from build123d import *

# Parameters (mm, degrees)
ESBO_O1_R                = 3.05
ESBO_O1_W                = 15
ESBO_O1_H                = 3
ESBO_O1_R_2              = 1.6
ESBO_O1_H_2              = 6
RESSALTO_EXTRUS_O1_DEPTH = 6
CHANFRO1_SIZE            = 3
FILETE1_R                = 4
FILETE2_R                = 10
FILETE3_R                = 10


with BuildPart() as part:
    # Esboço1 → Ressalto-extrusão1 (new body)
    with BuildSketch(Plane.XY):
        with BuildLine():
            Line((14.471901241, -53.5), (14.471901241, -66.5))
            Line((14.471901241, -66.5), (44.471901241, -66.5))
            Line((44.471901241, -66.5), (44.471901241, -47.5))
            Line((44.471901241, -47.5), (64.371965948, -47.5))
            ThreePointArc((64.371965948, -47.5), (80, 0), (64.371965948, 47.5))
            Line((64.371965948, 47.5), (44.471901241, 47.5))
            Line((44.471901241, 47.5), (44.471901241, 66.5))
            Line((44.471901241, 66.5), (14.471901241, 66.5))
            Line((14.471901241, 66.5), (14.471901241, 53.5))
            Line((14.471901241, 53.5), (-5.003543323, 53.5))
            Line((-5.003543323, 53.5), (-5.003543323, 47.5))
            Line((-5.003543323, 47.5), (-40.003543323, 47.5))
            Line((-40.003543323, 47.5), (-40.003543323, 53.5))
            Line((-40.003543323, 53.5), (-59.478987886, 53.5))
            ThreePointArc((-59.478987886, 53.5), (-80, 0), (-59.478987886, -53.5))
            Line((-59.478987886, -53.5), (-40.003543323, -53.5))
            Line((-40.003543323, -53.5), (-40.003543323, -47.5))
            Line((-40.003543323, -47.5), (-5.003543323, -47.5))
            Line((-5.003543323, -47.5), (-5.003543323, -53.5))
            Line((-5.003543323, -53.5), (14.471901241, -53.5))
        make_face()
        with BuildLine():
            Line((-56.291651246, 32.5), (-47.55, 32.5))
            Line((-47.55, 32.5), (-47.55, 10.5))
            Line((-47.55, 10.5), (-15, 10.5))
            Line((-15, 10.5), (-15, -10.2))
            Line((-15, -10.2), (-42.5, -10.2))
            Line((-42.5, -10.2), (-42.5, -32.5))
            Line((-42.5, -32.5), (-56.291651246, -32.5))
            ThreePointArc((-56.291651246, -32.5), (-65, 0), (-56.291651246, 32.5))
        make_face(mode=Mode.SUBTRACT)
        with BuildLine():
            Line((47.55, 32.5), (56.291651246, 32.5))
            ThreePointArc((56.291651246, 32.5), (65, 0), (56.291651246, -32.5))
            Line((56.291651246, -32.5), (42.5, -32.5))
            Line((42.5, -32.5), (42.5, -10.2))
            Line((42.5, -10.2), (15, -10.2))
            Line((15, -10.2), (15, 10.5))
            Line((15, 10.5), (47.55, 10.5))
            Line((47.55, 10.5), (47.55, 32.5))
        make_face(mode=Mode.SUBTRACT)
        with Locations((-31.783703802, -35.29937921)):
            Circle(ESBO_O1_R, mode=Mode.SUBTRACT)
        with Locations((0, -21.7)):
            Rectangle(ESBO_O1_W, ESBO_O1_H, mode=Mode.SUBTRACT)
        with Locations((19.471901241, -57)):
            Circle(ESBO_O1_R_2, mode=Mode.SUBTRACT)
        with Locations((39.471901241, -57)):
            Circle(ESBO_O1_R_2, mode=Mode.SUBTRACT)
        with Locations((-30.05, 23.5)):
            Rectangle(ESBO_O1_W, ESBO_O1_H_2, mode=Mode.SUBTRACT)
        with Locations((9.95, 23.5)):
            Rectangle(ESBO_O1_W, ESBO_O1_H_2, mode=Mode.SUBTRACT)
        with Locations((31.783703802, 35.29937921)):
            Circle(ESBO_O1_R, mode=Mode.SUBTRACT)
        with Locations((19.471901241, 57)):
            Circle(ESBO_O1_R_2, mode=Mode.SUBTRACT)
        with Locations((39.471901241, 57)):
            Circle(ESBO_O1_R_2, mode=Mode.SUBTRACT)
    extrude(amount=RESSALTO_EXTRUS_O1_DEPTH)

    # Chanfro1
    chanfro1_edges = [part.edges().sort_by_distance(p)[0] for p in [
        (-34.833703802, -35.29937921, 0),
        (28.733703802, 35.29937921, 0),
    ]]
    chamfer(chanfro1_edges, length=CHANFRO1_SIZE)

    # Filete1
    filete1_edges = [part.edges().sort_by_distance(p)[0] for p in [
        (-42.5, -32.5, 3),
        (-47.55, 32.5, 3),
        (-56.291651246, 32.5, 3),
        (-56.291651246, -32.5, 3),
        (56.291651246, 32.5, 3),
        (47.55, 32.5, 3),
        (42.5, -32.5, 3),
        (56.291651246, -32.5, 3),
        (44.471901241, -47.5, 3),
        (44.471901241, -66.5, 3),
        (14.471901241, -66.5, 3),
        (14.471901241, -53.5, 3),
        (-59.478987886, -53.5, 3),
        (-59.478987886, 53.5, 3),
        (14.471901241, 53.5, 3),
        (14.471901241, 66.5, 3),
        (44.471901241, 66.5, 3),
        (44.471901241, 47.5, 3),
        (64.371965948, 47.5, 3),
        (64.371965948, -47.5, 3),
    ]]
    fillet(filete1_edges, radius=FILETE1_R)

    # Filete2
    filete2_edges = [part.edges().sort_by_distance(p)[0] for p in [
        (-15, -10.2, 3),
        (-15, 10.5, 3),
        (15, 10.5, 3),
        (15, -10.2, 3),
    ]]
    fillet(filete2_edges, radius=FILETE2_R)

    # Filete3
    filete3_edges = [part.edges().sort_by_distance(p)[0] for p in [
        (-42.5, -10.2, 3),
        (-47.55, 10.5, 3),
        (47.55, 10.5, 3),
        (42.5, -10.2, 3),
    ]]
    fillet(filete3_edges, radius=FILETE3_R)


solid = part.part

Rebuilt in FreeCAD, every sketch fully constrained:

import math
import FreeCAD as App
import Part
import Sketcher
Q = App.Units.Quantity


def edges_at(feature, points):
    """Names of the edges that pass closest to the given points."""
    edges = feature.Shape.Edges
    near = lambda p: min(range(len(edges)), key=lambda i: edges[i].distToShape(Part.Vertex(*p))[0])
    return sorted({f"Edge{near(p) + 1}" for p in points})

doc = App.newDocument("Part")
body = doc.addObject("PartDesign::Body", "Body")

# Sketch on XY plane
sketch1 = doc.addObject("Sketcher::SketchObject", "Sketch")
body.addObject(sketch1)
sketch1.AttachmentSupport = (doc.XY_Plane, [""])
sketch1.MapMode = "FlatFace"
sketch1.addGeometry([
    Part.LineSegment(App.Vector(14.5, -53.5, 0), App.Vector(14.5, -66.5, 0)),  # 0
    Part.LineSegment(App.Vector(14.5, -66.5, 0), App.Vector(44.5, -66.5, 0)),  # 1
    Part.LineSegment(App.Vector(44.5, -66.5, 0), App.Vector(44.5, -47.5, 0)),  # 2
    Part.LineSegment(App.Vector(44.5, -47.5, 0), App.Vector(64.4, -47.5, 0)),  # 3
    Part.ArcOfCircle(Part.Circle(App.Vector(0, 0, 0), App.Vector(0, 0, 1), 80), math.radians(-36), math.radians(36)),  # 4
    Part.LineSegment(App.Vector(64.4, 47.5, 0), App.Vector(44.5, 47.5, 0)),  # 5
    Part.LineSegment(App.Vector(44.5, 47.5, 0), App.Vector(44.5, 66.5, 0)),  # 6
    Part.LineSegment(App.Vector(44.5, 66.5, 0), App.Vector(14.5, 66.5, 0)),  # 7
    Part.LineSegment(App.Vector(14.5, 66.5, 0), App.Vector(14.5, 53.5, 0)),  # 8
    Part.LineSegment(App.Vector(14.5, 53.5, 0), App.Vector(-5, 53.5, 0)),  # 9
    Part.LineSegment(App.Vector(-5, 53.5, 0), App.Vector(-5, 47.5, 0)),  # 10
    Part.LineSegment(App.Vector(-5, 47.5, 0), App.Vector(-40, 47.5, 0)),  # 11
    Part.LineSegment(App.Vector(-40, 47.5, 0), App.Vector(-40, 53.5, 0)),  # 12
    Part.LineSegment(App.Vector(-40, 53.5, 0), App.Vector(-59.5, 53.5, 0)),  # 13
    Part.ArcOfCircle(Part.Circle(App.Vector(0, 0, 0), App.Vector(0, 0, 1), 80), math.radians(138), math.radians(222)),  # 14
    Part.LineSegment(App.Vector(-59.5, -53.5, 0), App.Vector(-40, -53.5, 0)),  # 15
    Part.LineSegment(App.Vector(-40, -53.5, 0), App.Vector(-40, -47.5, 0)),  # 16
    Part.LineSegment(App.Vector(-40, -47.5, 0), App.Vector(-5, -47.5, 0)),  # 17
    Part.LineSegment(App.Vector(-5, -47.5, 0), App.Vector(-5, -53.5, 0)),  # 18
    Part.LineSegment(App.Vector(-5, -53.5, 0), App.Vector(14.5, -53.5, 0)),  # 19
    Part.Circle(App.Vector(-31.8, -35.3, 0), App.Vector(0, 0, 1), 3),  # 20
    Part.Circle(App.Vector(19.5, -57, 0), App.Vector(0, 0, 1), 1.6),  # 21
    Part.Circle(App.Vector(39.5, -57, 0), App.Vector(0, 0, 1), 1.6),  # 22
    Part.LineSegment(App.Vector(7.5, -23.2, 0), App.Vector(-7.5, -23.2, 0)),  # 23
    Part.LineSegment(App.Vector(-7.5, -23.2, 0), App.Vector(-7.5, -20.2, 0)),  # 24
    Part.LineSegment(App.Vector(-7.5, -20.2, 0), App.Vector(7.5, -20.2, 0)),  # 25
    Part.LineSegment(App.Vector(7.5, -20.2, 0), App.Vector(7.5, -23.2, 0)),  # 26
    Part.LineSegment(App.Vector(47.5, 10.5, 0), App.Vector(47.5, 32.5, 0)),  # 27
    Part.LineSegment(App.Vector(47.5, 32.5, 0), App.Vector(56.3, 32.5, 0)),  # 28
    Part.ArcOfCircle(Part.Circle(App.Vector(0, 0, 0), App.Vector(0, 0, 1), 65), math.radians(-30), math.radians(30)),  # 29
    Part.LineSegment(App.Vector(56.3, -32.5, 0), App.Vector(42.5, -32.5, 0)),  # 30
    Part.LineSegment(App.Vector(42.5, -32.5, 0), App.Vector(42.5, -10.2, 0)),  # 31
    Part.LineSegment(App.Vector(42.5, -10.2, 0), App.Vector(15, -10.2, 0)),  # 32
    Part.LineSegment(App.Vector(15, -10.2, 0), App.Vector(15, 10.5, 0)),  # 33
    Part.LineSegment(App.Vector(15, 10.5, 0), App.Vector(47.5, 10.5, 0)),  # 34
    Part.ArcOfCircle(Part.Circle(App.Vector(0, 0, 0), App.Vector(0, 0, 1), 65), math.radians(150), math.radians(210)),  # 35
    Part.LineSegment(App.Vector(-56.3, 32.5, 0), App.Vector(-47.5, 32.5, 0)),  # 36
    Part.LineSegment(App.Vector(-47.5, 32.5, 0), App.Vector(-47.5, 10.5, 0)),  # 37
    Part.LineSegment(App.Vector(-47.5, 10.5, 0), App.Vector(-15, 10.5, 0)),  # 38
    Part.LineSegment(App.Vector(-15, 10.5, 0), App.Vector(-15, -10.2, 0)),  # 39
    Part.LineSegment(App.Vector(-15, -10.2, 0), App.Vector(-42.5, -10.2, 0)),  # 40
    Part.LineSegment(App.Vector(-42.5, -10.2, 0), App.Vector(-42.5, -32.5, 0)),  # 41
    Part.LineSegment(App.Vector(-42.5, -32.5, 0), App.Vector(-56.3, -32.5, 0)),  # 42
    Part.LineSegment(App.Vector(-22.6, 20.5, 0), App.Vector(-37.5, 20.5, 0)),  # 43
    Part.LineSegment(App.Vector(-37.5, 20.5, 0), App.Vector(-37.5, 26.5, 0)),  # 44
    Part.LineSegment(App.Vector(-37.5, 26.5, 0), App.Vector(-22.6, 26.5, 0)),  # 45
    Part.LineSegment(App.Vector(-22.6, 26.5, 0), App.Vector(-22.6, 20.5, 0)),  # 46
    Part.LineSegment(App.Vector(17.4, 20.5, 0), App.Vector(2.5, 20.5, 0)),  # 47
    Part.LineSegment(App.Vector(2.5, 20.5, 0), App.Vector(2.5, 26.5, 0)),  # 48
    Part.LineSegment(App.Vector(2.5, 26.5, 0), App.Vector(17.4, 26.5, 0)),  # 49
    Part.LineSegment(App.Vector(17.4, 26.5, 0), App.Vector(17.4, 20.5, 0)),  # 50
    Part.Circle(App.Vector(31.8, 35.3, 0), App.Vector(0, 0, 1), 3),  # 51
    Part.Circle(App.Vector(19.5, 57, 0), App.Vector(0, 0, 1), 1.6),  # 52
    Part.Circle(App.Vector(39.5, 57, 0), App.Vector(0, 0, 1), 1.6),  # 53
], False)
sketch1.addConstraint([
    Sketcher.Constraint("Coincident", 0, 2, 1, 1),
    Sketcher.Constraint("Coincident", 1, 2, 2, 1),
    Sketcher.Constraint("Coincident", 2, 2, 3, 1),
    Sketcher.Constraint("Coincident", 3, 2, 4, 1),
    Sketcher.Constraint("Coincident", 4, 2, 5, 1),
    Sketcher.Constraint("Coincident", 5, 2, 6, 1),
    Sketcher.Constraint("Coincident", 6, 2, 7, 1),
    Sketcher.Constraint("Coincident", 7, 2, 8, 1),
    Sketcher.Constraint("Coincident", 8, 2, 9, 1),
    Sketcher.Constraint("Coincident", 9, 2, 10, 1),
    Sketcher.Constraint("Coincident", 10, 2, 11, 1),
    Sketcher.Constraint("Coincident", 11, 2, 12, 1),
    Sketcher.Constraint("Coincident", 12, 2, 13, 1),
    Sketcher.Constraint("Coincident", 13, 2, 14, 1),
    Sketcher.Constraint("Coincident", 14, 2, 15, 1),
    Sketcher.Constraint("Coincident", 15, 2, 16, 1),
    Sketcher.Constraint("Coincident", 16, 2, 17, 1),
    Sketcher.Constraint("Coincident", 17, 2, 18, 1),
    Sketcher.Constraint("Coincident", 18, 2, 19, 1),
    Sketcher.Constraint("Coincident", 19, 2, 0, 1),
    Sketcher.Constraint("Coincident", 23, 2, 24, 1),
    Sketcher.Constraint("Coincident", 24, 2, 25, 1),
    Sketcher.Constraint("Coincident", 25, 2, 26, 1),
    Sketcher.Constraint("Coincident", 26, 2, 23, 1),
    Sketcher.Constraint("Coincident", 27, 2, 28, 1),
    Sketcher.Constraint("Coincident", 28, 2, 29, 2),
    Sketcher.Constraint("Coincident", 29, 1, 30, 1),
    Sketcher.Constraint("Coincident", 30, 2, 31, 1),
    Sketcher.Constraint("Coincident", 31, 2, 32, 1),
    Sketcher.Constraint("Coincident", 32, 2, 33, 1),
    Sketcher.Constraint("Coincident", 33, 2, 34, 1),
    Sketcher.Constraint("Coincident", 34, 2, 27, 1),
    Sketcher.Constraint("Coincident", 35, 1, 36, 1),
    Sketcher.Constraint("Coincident", 36, 2, 37, 1),
    Sketcher.Constraint("Coincident", 37, 2, 38, 1),
    Sketcher.Constraint("Coincident", 38, 2, 39, 1),
    Sketcher.Constraint("Coincident", 39, 2, 40, 1),
    Sketcher.Constraint("Coincident", 40, 2, 41, 1),
    Sketcher.Constraint("Coincident", 41, 2, 42, 1),
    Sketcher.Constraint("Coincident", 42, 2, 35, 2),
    Sketcher.Constraint("Coincident", 43, 2, 44, 1),
    Sketcher.Constraint("Coincident", 44, 2, 45, 1),
    Sketcher.Constraint("Coincident", 45, 2, 46, 1),
    Sketcher.Constraint("Coincident", 46, 2, 43, 1),
    Sketcher.Constraint("Coincident", 47, 2, 48, 1),
    Sketcher.Constraint("Coincident", 48, 2, 49, 1),
    Sketcher.Constraint("Coincident", 49, 2, 50, 1),
    Sketcher.Constraint("Coincident", 50, 2, 47, 1),
    Sketcher.Constraint("Vertical", 0),
    Sketcher.Constraint("Horizontal", 1),
    Sketcher.Constraint("Vertical", 2),
    Sketcher.Constraint("Horizontal", 3),
    Sketcher.Constraint("Horizontal", 5),
    Sketcher.Constraint("Vertical", 6),
    Sketcher.Constraint("Horizontal", 7),
    Sketcher.Constraint("Vertical", 8),
    Sketcher.Constraint("Horizontal", 9),
    Sketcher.Constraint("Vertical", 10),
    Sketcher.Constraint("Horizontal", 11),
    Sketcher.Constraint("Vertical", 12),
    Sketcher.Constraint("Horizontal", 13),
    Sketcher.Constraint("Horizontal", 15),
    Sketcher.Constraint("Vertical", 16),
    Sketcher.Constraint("Horizontal", 17),
    Sketcher.Constraint("Vertical", 18),
    Sketcher.Constraint("Horizontal", 19),
    Sketcher.Constraint("Horizontal", 23),
    Sketcher.Constraint("Vertical", 24),
    Sketcher.Constraint("Horizontal", 25),
    Sketcher.Constraint("Vertical", 26),
    Sketcher.Constraint("Vertical", 27),
    Sketcher.Constraint("Horizontal", 28),
    Sketcher.Constraint("Horizontal", 30),
    Sketcher.Constraint("Vertical", 31),
    Sketcher.Constraint("Horizontal", 32),
    Sketcher.Constraint("Vertical", 33),
    Sketcher.Constraint("Horizontal", 34),
    Sketcher.Constraint("Horizontal", 36),
    Sketcher.Constraint("Vertical", 37),
    Sketcher.Constraint("Horizontal", 38),
    Sketcher.Constraint("Vertical", 39),
    Sketcher.Constraint("Horizontal", 40),
    Sketcher.Constraint("Vertical", 41),
    Sketcher.Constraint("Horizontal", 42),
    Sketcher.Constraint("Horizontal", 43),
    Sketcher.Constraint("Vertical", 44),
    Sketcher.Constraint("Horizontal", 45),
    Sketcher.Constraint("Vertical", 46),
    Sketcher.Constraint("Horizontal", 47),
    Sketcher.Constraint("Vertical", 48),
    Sketcher.Constraint("Horizontal", 49),
    Sketcher.Constraint("Vertical", 50),
    Sketcher.Constraint("Coincident", 4, 3, -1, 1),
    Sketcher.Constraint("Coincident", 14, 3, -1, 1),
    Sketcher.Constraint("Coincident", 29, 3, -1, 1),
    Sketcher.Constraint("Coincident", 35, 3, -1, 1),
    Sketcher.Constraint("Equal", 4, 14),
    Sketcher.Constraint("Equal", 21, 22),
    Sketcher.Constraint("Equal", 29, 35),
    Sketcher.Constraint("Equal", 20, 51),
    Sketcher.Constraint("Equal", 22, 52),
    Sketcher.Constraint("Equal", 52, 53),
    Sketcher.Constraint("Symmetric", 20, 3, 51, 3, -1, 1),
    Sketcher.Constraint("Symmetric", 27, 2, 36, 2, -2),
    Sketcher.Constraint("Symmetric", 33, 2, 38, 2, -2),
    Sketcher.Constraint("Symmetric", 31, 2, 40, 2, -2),
    Sketcher.Constraint("Symmetric", 21, 3, 52, 3, -1),
    Sketcher.Constraint("Symmetric", 22, 3, 53, 3, -1),
    Sketcher.Constraint("Symmetric", 2, 2, 5, 2, -1),
    Sketcher.Constraint("Symmetric", 0, 2, 7, 2, -1),
    Sketcher.Constraint("Symmetric", 12, 2, 15, 2, -1),
    Sketcher.Constraint("Symmetric", 10, 2, 17, 2, -1),
    Sketcher.Constraint("Horizontal", 21, 3, 22, 3),
    Sketcher.Constraint("Horizontal", 5, 2, 10, 2),
    Sketcher.Constraint("Horizontal", 9, 2, 12, 2),
    Sketcher.Constraint("Horizontal", 15, 2, 18, 2),
    Sketcher.Constraint("Horizontal", 30, 2, 41, 2),
    Sketcher.Constraint("Horizontal", 46, 2, 47, 2),
    Sketcher.Constraint("Horizontal", 45, 2, 48, 2),
    Sketcher.Constraint("Vertical", 28, 2, 29, 1),
    Sketcher.Constraint("Equal", 9, 13),
    Sketcher.Constraint("Equal", 25, 43),
    Sketcher.Constraint("Equal", 45, 47),
    Sketcher.Constraint("Equal", 18, 44),
    Sketcher.Constraint("Radius", 4, Q("80 mm")),
    Sketcher.Constraint("Radius", 29, Q("65 mm")),
    Sketcher.Constraint("Diameter", 20, Q("6.1 mm")),
    Sketcher.Constraint("Diameter", 21, Q("3.2 mm")),
    Sketcher.Constraint("DistanceX", 1, 1, 1, 2, Q("30 mm")),
    Sketcher.Constraint("DistanceX", 11, 2, 11, 1, Q("35 mm")),
    Sketcher.Constraint("DistanceX", 23, 2, 23, 1, Q("15 mm")),
    Sketcher.Constraint("DistanceY", 0, 2, 0, 1, Q("13 mm")),
    Sketcher.Constraint("DistanceY", 2, 1, 2, 2, Q("19 mm")),
    Sketcher.Constraint("DistanceY", 24, 1, 24, 2, Q("3 mm")),
    Sketcher.Constraint("DistanceY", 27, 1, 27, 2, Q("22 mm")),
    Sketcher.Constraint("DistanceX", 32, 2, 32, 1, Q("27.5 mm")),
    Sketcher.Constraint("DistanceY", 31, 1, 31, 2, Q("22.3 mm")),
    Sketcher.Constraint("DistanceY", 33, 1, 33, 2, Q("20.7 mm")),
    Sketcher.Constraint("DistanceY", 21, 3, -1, 1, Q("57 mm")),
    Sketcher.Constraint("DistanceX", -1, 1, 32, 2, Q("15 mm")),
    Sketcher.Constraint("DistanceX", 21, 3, 22, 3, Q("20 mm")),
    Sketcher.Constraint("DistanceX", 0, 2, 21, 3, Q("5 mm")),
    Sketcher.Constraint("DistanceY", 27, 2, 5, 2, Q("15 mm")),
    Sketcher.Constraint("DistanceX", 25, 2, 31, 2, Q("35 mm")),
    Sketcher.Constraint("DistanceY", 25, 2, 31, 2, Q("10 mm")),
    Sketcher.Constraint("DistanceX", 37, 2, 43, 2, Q("10 mm")),
    Sketcher.Constraint("DistanceY", 37, 2, 43, 2, Q("10 mm")),
    Sketcher.Constraint("DistanceX", 45, 2, 48, 2, Q("25 mm")),
    Sketcher.Constraint("DistanceX", 34, 1, 34, 2, Q("32.55 mm")),
    Sketcher.Constraint("DistanceX", -1, 1, 21, 3, Q("19.471901 mm")),
    Sketcher.Constraint("DistanceY", 20, 3, -1, 1, Q("35.299379 mm")),
    Sketcher.Constraint("DistanceX", 15, 2, 20, 3, Q("8.21984 mm")),
])
pad1 = doc.addObject("PartDesign::Pad", "Pad")
body.addObject(pad1)
pad1.Profile = sketch1
pad1.Length = 6
doc.recompute()

chamfer = doc.addObject("PartDesign::Chamfer", "Chamfer")
body.addObject(chamfer)
chamfer.Base = (pad1, edges_at(pad1, [(-34.834, -35.299, 0), (28.734, 35.299, 0)]))
chamfer.Size = 3
doc.recompute()

fillet = doc.addObject("PartDesign::Fillet", "Fillet")
body.addObject(fillet)
fillet.Base = (chamfer, edges_at(chamfer, [
    (-42.5, -32.5, 3),
    (-47.55, 32.5, 3),
    (-56.292, 32.5, 3),
    (-56.292, -32.5, 3),
    (56.292, 32.5, 3),
    (47.55, 32.5, 3),
    (42.5, -32.5, 3),
    (56.292, -32.5, 3),
    (44.472, -47.5, 3),
    (44.472, -66.5, 3),
    (14.472, -66.5, 3),
    (14.472, -53.5, 3),
    (-59.479, -53.5, 3),
    (-59.479, 53.5, 3),
    (14.472, 53.5, 3),
    (14.472, 66.5, 3),
    (44.472, 66.5, 3),
    (44.472, 47.5, 3),
    (64.372, 47.5, 3),
    (64.372, -47.5, 3),
]))
fillet.Radius = 4
doc.recompute()

fillet2 = doc.addObject("PartDesign::Fillet", "Fillet001")
body.addObject(fillet2)
fillet2.Base = (fillet, edges_at(fillet, [
    (-15, -10.2, 3),
    (-15, 10.5, 3),
    (15, 10.5, 3),
    (15, -10.2, 3),
]))
fillet2.Radius = 10
doc.recompute()

fillet3 = doc.addObject("PartDesign::Fillet", "Fillet002")
body.addObject(fillet3)
fillet3.Base = (fillet2, edges_at(fillet2, [
    (-42.5, -10.2, 3),
    (-47.55, 10.5, 3),
    (47.55, 10.5, 3),
    (42.5, -10.2, 3),
]))
fillet3.Radius = 10

doc.recompute()
